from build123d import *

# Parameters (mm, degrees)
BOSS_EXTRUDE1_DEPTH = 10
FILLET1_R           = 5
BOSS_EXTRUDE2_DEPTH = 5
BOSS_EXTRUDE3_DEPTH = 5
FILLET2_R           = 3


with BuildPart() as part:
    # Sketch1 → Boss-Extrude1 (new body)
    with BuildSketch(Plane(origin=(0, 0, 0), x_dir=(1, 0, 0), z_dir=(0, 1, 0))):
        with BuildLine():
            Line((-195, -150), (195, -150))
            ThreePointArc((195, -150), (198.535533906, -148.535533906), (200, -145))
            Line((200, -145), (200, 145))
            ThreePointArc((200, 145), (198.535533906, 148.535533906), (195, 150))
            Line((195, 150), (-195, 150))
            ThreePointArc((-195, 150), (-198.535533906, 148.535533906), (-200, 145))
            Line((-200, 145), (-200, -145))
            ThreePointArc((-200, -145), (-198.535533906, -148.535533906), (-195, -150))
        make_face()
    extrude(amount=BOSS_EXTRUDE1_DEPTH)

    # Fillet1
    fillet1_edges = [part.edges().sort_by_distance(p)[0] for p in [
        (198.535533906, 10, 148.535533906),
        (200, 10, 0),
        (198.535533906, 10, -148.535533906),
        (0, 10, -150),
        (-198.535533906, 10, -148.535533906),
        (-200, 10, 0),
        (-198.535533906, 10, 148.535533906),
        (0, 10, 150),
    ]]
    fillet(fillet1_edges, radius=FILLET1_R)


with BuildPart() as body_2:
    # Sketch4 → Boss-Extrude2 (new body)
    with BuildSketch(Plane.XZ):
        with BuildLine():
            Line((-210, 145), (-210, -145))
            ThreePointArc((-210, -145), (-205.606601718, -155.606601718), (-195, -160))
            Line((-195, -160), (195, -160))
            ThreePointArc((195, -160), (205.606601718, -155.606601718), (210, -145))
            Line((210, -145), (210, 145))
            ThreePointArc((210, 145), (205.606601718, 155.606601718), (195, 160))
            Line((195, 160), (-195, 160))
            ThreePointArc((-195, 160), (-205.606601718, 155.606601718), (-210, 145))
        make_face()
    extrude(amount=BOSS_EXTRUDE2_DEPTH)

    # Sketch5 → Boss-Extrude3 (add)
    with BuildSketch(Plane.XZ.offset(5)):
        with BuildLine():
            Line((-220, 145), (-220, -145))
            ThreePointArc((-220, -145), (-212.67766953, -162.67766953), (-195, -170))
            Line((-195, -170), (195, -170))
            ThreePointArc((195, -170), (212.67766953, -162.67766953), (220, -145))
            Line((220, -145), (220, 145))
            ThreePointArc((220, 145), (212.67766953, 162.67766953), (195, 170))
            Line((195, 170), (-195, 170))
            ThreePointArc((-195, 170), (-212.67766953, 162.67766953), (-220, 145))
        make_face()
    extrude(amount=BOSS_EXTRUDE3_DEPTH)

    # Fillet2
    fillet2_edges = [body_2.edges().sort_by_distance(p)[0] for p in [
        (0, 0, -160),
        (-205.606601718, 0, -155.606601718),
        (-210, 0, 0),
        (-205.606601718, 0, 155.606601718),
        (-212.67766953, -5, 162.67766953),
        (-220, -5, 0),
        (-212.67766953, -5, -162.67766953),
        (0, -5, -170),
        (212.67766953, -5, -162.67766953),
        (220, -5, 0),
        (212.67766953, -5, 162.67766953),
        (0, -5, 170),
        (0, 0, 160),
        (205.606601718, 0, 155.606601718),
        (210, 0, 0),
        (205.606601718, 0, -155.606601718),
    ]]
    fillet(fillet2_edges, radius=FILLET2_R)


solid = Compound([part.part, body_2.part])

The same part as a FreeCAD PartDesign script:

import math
import FreeCAD as App
import Part
import Sketcher


def edges_at(feature, points):
    """Names of the edges that pass closest to the given points."""
    edges = feature.Shape.Edges
    near = lambda p: min(range(len(edges)), key=lambda i: edges[i].distToShape(Part.Vertex(*p))[0])
    return sorted({f"Edge{near(p) + 1}" for p in points})

doc = App.newDocument("Part")
body = doc.addObject("PartDesign::Body", "Body")

# Sketch on XZ plane
sketch1 = body.newObject("Sketcher::SketchObject", "Sketch")
sketch1.AttachmentSupport = (doc.getObject("XZ_Plane"), [""])
sketch1.MapMode = "FlatFace"
sketch1.addGeometry([
    Part.LineSegment(App.Vector(-195, 150, 0), App.Vector(195, 150, 0)),  # 0
    Part.ArcOfCircle(Part.Circle(App.Vector(195, 145, 0), App.Vector(0, 0, 1), 5), math.radians(0), math.radians(90)),  # 1
    Part.LineSegment(App.Vector(200, 145, 0), App.Vector(200, -145, 0)),  # 2
    Part.ArcOfCircle(Part.Circle(App.Vector(195, -145, 0), App.Vector(0, 0, 1), 5), math.radians(-90), math.radians(0)),  # 3
    Part.LineSegment(App.Vector(195, -150, 0), App.Vector(-195, -150, 0)),  # 4
    Part.ArcOfCircle(Part.Circle(App.Vector(-195, -145, 0), App.Vector(0, 0, 1), 5), math.radians(180), math.radians(270)),  # 5
    Part.LineSegment(App.Vector(-200, -145, 0), App.Vector(-200, 145, 0)),  # 6
    Part.ArcOfCircle(Part.Circle(App.Vector(-195, 145, 0), App.Vector(0, 0, 1), 5), math.radians(90), math.radians(180)),  # 7
], False)
sketch1.addConstraint([
    Sketcher.Constraint("Tangent", 0, 2, 1, 2),
    Sketcher.Constraint("Tangent", 1, 1, 2, 1),
    Sketcher.Constraint("Tangent", 2, 2, 3, 2),
    Sketcher.Constraint("Tangent", 3, 1, 4, 1),
    Sketcher.Constraint("Tangent", 4, 2, 5, 2),
    Sketcher.Constraint("Tangent", 5, 1, 6, 1),
    Sketcher.Constraint("Tangent", 6, 2, 7, 2),
    Sketcher.Constraint("Tangent", 7, 1, 0, 1),
    Sketcher.Constraint("Horizontal", 0),
    Sketcher.Constraint("Vertical", 2),
    Sketcher.Constraint("Horizontal", 4),
    Sketcher.Constraint("Vertical", 6),
    Sketcher.Constraint("Equal", 1, 3),
    Sketcher.Constraint("Equal", 3, 5),
    Sketcher.Constraint("Equal", 5, 7),
    Sketcher.Constraint("Symmetric", 1, 3, 5, 3, -1, 1),
    Sketcher.Constraint("Radius", 1, 5.0),
    Sketcher.Constraint("DistanceX", 0, 1, 0, 2, 390.0),
    Sketcher.Constraint("DistanceY", 2, 2, 2, 1, 290.0),
])
pad1 = body.newObject("PartDesign::Pad", "Pad")
pad1.Profile = sketch1
pad1.Length = 10
pad1.Reversed = True
doc.recompute()

fillet = body.newObject("PartDesign::Fillet", "Fillet")
fillet.Base = (pad1, edges_at(pad1, [
    (198.536, 10, 148.536),
    (200, 10, 0),
    (198.536, 10, -148.536),
    (0, 10, -150),
    (-198.536, 10, -148.536),
    (-200, 10, 0),
    (-198.536, 10, 148.536),
    (0, 10, 150),
]))
fillet.Radius = 5
body2 = doc.addObject("PartDesign::Body", "Body001")

# Sketch on XZ plane
sketch2 = body2.newObject("Sketcher::SketchObject", "Sketch001")
sketch2.AttachmentSupport = (doc.getObject("XZ_Plane001"), [""])
sketch2.MapMode = "FlatFace"
sketch2.addGeometry([
    Part.LineSegment(App.Vector(-210, 145, 0), App.Vector(-210, -145, 0)),  # 0
    Part.ArcOfCircle(Part.Circle(App.Vector(-195, -145, 0), App.Vector(0, 0, 1), 15), math.radians(180), math.radians(270)),  # 1
    Part.LineSegment(App.Vector(-195, -160, 0), App.Vector(195, -160, 0)),  # 2
    Part.ArcOfCircle(Part.Circle(App.Vector(195, -145, 0), App.Vector(0, 0, 1), 15), math.radians(-90), math.radians(0)),  # 3
    Part.LineSegment(App.Vector(210, -145, 0), App.Vector(210, 145, 0)),  # 4
    Part.ArcOfCircle(Part.Circle(App.Vector(195, 145, 0), App.Vector(0, 0, 1), 15), math.radians(0), math.radians(90)),  # 5
    Part.LineSegment(App.Vector(195, 160, 0), App.Vector(-195, 160, 0)),  # 6
    Part.ArcOfCircle(Part.Circle(App.Vector(-195, 145, 0), App.Vector(0, 0, 1), 15), math.radians(90), math.radians(180)),  # 7
], False)
sketch2.addConstraint([
    Sketcher.Constraint("Tangent", 0, 2, 1, 1),
    Sketcher.Constraint("Tangent", 1, 2, 2, 1),
    Sketcher.Constraint("Tangent", 2, 2, 3, 1),
    Sketcher.Constraint("Tangent", 3, 2, 4, 1),
    Sketcher.Constraint("Tangent", 4, 2, 5, 1),
    Sketcher.Constraint("Tangent", 5, 2, 6, 1),
    Sketcher.Constraint("Tangent", 6, 2, 7, 1),
    Sketcher.Constraint("Tangent", 7, 2, 0, 1),
    Sketcher.Constraint("Vertical", 0),
    Sketcher.Constraint("Horizontal", 2),
    Sketcher.Constraint("Vertical", 4),
    Sketcher.Constraint("Horizontal", 6),
    Sketcher.Constraint("Equal", 1, 3),
    Sketcher.Constraint("Equal", 3, 5),
    Sketcher.Constraint("Equal", 5, 7),
    Sketcher.Constraint("Symmetric", 1, 3, 5, 3, -1, 1),
    Sketcher.Constraint("Radius", 1, 15.0),
    Sketcher.Constraint("DistanceX", 2, 1, 2, 2, 390.0),
    Sketcher.Constraint("DistanceY", 0, 2, 0, 1, 290.0),
])
pad2 = body2.newObject("PartDesign::Pad", "Pad001")
pad2.Profile = sketch2
pad2.Length = 5

# Sketch on XZ plane
sketch3 = body2.newObject("Sketcher::SketchObject", "Sketch002")
sketch3.AttachmentSupport = (doc.getObject("XZ_Plane001"), [""])
sketch3.MapMode = "FlatFace"
sketch3.AttachmentOffset = App.Placement(App.Vector(0, 0, 5), App.Rotation())
sketch3.addGeometry([
    Part.LineSegment(App.Vector(-220, 145, 0), App.Vector(-220, -145, 0)),  # 0
    Part.ArcOfCircle(Part.Circle(App.Vector(-195, -145, 0), App.Vector(0, 0, 1), 25), math.radians(180), math.radians(270)),  # 1
    Part.LineSegment(App.Vector(-195, -170, 0), App.Vector(195, -170, 0)),  # 2
    Part.ArcOfCircle(Part.Circle(App.Vector(195, -145, 0), App.Vector(0, 0, 1), 25), math.radians(-90), math.radians(0)),  # 3
    Part.LineSegment(App.Vector(220, -145, 0), App.Vector(220, 145, 0)),  # 4
    Part.ArcOfCircle(Part.Circle(App.Vector(195, 145, 0), App.Vector(0, 0, 1), 25), math.radians(0), math.radians(90)),  # 5
    Part.LineSegment(App.Vector(195, 170, 0), App.Vector(-195, 170, 0)),  # 6
    Part.ArcOfCircle(Part.Circle(App.Vector(-195, 145, 0), App.Vector(0, 0, 1), 25), math.radians(90), math.radians(180)),  # 7
], False)
sketch3.addConstraint([
    Sketcher.Constraint("Tangent", 0, 2, 1, 1),
    Sketcher.Constraint("Tangent", 1, 2, 2, 1),
    Sketcher.Constraint("Tangent", 2, 2, 3, 1),
    Sketcher.Constraint("Tangent", 3, 2, 4, 1),
    Sketcher.Constraint("Tangent", 4, 2, 5, 1),
    Sketcher.Constraint("Tangent", 5, 2, 6, 1),
    Sketcher.Constraint("Tangent", 6, 2, 7, 1),
    Sketcher.Constraint("Tangent", 7, 2, 0, 1),
    Sketcher.Constraint("Vertical", 0),
    Sketcher.Constraint("Horizontal", 2),
    Sketcher.Constraint("Vertical", 4),
    Sketcher.Constraint("Horizontal", 6),
    Sketcher.Constraint("Equal", 1, 3),
    Sketcher.Constraint("Equal", 3, 5),
    Sketcher.Constraint("Equal", 5, 7),
    Sketcher.Constraint("Symmetric", 1, 3, 5, 3, -1, 1),
    Sketcher.Constraint("Radius", 1, 25.0),
    Sketcher.Constraint("DistanceX", 2, 1, 2, 2, 390.0),
    Sketcher.Constraint("DistanceY", 0, 2, 0, 1, 290.0),
])
pad3 = body2.newObject("PartDesign::Pad", "Pad002")
pad3.Profile = sketch3
pad3.Length = 5
doc.recompute()

fillet2 = body2.newObject("PartDesign::Fillet", "Fillet001")
fillet2.Base = (pad3, edges_at(pad3, [
    (0, 0, -160),
    (-205.607, 0, -155.607),
    (-210, 0, 0),
    (-205.607, 0, 155.607),
    (-212.678, -5, 162.678),
    (-220, -5, 0),
    (-212.678, -5, -162.678),
    (0, -5, -170),
    (212.678, -5, -162.678),
    (220, -5, 0),
    (212.678, -5, 162.678),
    (0, -5, 170),
    (0, 0, 160),
    (205.607, 0, 155.607),
    (210, 0, 0),
    (205.607, 0, -155.607),
]))
fillet2.Radius = 3

doc.recompute()
